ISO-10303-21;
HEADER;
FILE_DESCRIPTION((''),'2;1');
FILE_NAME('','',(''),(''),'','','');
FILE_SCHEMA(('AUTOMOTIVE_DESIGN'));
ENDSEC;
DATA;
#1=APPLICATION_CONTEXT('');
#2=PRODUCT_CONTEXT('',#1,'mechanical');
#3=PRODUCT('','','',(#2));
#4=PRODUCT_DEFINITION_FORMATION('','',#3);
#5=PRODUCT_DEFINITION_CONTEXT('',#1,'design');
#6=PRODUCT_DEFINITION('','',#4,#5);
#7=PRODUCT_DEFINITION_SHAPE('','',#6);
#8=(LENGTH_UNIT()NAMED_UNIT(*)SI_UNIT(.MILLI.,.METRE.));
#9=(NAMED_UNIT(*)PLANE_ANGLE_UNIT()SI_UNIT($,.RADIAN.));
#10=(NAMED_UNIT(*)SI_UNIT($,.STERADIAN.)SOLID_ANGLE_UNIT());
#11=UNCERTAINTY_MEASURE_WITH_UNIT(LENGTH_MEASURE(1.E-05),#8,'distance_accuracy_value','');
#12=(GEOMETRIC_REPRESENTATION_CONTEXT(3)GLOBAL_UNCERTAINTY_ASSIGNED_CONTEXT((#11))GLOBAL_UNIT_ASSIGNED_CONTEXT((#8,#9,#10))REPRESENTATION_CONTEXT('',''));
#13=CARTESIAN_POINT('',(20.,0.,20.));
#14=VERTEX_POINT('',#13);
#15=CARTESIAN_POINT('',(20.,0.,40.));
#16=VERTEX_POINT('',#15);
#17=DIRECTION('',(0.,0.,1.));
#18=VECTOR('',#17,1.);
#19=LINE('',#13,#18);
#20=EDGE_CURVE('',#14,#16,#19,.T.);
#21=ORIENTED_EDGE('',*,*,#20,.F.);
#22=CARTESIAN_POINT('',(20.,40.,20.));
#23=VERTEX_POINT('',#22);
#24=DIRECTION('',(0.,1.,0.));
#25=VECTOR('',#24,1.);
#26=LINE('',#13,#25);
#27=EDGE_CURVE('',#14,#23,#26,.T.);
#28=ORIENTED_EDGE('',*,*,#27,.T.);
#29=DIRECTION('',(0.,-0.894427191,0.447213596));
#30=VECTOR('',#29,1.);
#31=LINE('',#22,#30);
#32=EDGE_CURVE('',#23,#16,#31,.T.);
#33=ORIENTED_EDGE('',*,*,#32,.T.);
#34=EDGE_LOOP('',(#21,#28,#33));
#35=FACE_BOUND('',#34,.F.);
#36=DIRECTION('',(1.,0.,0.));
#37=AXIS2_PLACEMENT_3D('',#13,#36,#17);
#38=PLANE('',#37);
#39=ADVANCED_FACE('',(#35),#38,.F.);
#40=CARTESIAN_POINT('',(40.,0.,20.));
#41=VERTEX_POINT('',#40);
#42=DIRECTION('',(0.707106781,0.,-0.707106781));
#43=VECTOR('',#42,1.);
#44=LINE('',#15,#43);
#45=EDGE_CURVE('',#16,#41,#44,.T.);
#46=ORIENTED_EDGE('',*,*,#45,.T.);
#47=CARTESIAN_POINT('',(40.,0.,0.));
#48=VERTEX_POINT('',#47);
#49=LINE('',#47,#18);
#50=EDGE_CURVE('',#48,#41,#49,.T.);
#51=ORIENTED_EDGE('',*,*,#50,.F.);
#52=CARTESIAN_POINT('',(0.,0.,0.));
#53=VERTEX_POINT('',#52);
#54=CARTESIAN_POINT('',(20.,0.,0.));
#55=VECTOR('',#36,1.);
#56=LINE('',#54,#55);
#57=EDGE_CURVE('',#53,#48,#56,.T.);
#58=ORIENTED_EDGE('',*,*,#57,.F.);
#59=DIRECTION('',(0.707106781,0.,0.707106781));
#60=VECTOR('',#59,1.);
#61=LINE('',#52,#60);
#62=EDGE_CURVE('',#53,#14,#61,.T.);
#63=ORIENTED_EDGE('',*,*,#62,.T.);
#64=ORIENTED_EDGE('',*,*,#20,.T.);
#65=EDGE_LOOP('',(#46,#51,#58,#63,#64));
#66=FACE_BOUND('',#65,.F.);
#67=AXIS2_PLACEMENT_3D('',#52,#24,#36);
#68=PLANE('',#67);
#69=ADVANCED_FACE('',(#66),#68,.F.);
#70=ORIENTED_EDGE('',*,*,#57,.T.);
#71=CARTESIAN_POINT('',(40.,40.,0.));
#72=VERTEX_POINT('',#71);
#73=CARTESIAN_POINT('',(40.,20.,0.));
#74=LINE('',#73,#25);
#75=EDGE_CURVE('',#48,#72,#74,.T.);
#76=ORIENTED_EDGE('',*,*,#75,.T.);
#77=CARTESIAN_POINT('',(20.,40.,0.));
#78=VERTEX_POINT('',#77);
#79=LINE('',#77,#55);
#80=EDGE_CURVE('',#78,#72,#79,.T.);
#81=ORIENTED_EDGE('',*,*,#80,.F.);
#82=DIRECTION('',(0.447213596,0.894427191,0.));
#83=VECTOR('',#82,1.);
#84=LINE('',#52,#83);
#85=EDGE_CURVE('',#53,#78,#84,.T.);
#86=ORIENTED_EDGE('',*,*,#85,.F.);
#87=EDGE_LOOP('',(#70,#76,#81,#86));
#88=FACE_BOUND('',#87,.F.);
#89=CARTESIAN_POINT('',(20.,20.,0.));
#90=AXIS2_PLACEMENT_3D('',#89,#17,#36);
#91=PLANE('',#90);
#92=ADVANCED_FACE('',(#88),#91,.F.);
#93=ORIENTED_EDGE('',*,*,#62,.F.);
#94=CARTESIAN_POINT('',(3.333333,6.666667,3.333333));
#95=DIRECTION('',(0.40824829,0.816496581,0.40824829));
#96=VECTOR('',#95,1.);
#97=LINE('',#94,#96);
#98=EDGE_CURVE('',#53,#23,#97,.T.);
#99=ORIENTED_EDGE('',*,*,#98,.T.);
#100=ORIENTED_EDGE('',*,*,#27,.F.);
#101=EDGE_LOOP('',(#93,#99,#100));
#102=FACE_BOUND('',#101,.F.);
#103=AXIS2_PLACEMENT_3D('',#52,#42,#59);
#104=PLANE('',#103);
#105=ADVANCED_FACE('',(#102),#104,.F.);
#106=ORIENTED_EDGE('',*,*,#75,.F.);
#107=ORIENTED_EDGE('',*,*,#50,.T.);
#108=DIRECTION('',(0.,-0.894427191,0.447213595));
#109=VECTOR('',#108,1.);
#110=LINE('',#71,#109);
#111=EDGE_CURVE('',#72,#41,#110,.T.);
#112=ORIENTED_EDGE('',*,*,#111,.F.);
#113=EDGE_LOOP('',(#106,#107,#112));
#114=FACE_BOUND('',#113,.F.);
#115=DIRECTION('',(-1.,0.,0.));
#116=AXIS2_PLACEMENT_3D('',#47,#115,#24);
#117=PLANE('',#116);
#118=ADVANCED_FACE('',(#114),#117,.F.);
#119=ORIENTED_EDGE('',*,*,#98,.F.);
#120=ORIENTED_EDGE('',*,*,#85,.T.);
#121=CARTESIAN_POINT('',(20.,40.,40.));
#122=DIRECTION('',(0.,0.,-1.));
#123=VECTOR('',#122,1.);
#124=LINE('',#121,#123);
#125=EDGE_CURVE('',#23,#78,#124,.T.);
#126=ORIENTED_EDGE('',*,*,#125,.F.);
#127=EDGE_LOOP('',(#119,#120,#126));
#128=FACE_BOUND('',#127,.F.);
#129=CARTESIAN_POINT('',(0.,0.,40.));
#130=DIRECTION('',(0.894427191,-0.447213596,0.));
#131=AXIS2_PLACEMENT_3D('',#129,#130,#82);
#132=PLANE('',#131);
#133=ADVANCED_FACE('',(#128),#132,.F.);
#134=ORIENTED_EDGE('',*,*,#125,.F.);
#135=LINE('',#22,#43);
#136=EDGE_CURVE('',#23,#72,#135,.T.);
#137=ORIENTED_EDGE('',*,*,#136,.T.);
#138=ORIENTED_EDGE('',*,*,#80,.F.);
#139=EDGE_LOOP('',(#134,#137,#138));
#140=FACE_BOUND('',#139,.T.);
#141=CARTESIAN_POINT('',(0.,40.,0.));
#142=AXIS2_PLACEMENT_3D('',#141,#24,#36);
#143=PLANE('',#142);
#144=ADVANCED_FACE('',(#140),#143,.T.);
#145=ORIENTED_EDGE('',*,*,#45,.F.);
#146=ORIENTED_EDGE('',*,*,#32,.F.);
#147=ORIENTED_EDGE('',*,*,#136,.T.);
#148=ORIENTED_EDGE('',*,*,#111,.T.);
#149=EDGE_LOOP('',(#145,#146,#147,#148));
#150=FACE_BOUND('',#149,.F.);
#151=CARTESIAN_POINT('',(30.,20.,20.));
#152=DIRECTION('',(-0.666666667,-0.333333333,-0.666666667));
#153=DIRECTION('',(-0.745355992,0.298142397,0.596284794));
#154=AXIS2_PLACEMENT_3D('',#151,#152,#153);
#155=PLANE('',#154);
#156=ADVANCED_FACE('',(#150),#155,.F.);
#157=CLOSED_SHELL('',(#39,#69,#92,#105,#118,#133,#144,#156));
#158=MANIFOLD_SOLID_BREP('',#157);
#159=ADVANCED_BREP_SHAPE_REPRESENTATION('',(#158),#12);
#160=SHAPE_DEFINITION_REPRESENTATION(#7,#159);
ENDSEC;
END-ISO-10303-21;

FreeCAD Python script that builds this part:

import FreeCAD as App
import Part
import Sketcher

V = App.Vector
Q = App.Units.Quantity

doc = App.newDocument("Part")
body = doc.addObject("PartDesign::Body", "Body")

# Sketch on XY plane
sketch1 = body.newObject("Sketcher::SketchObject", "Sketch")
sketch1.AttachmentSupport = (doc.getObject("XY_Plane"), [""])
sketch1.MapMode = "FlatFace"
sketch1.addGeometry(Part.LineSegment(V(0, 40, 0), V(0, 0, 0)), False)
sketch1.addGeometry(Part.LineSegment(V(0, 0, 0), V(40, 0, 0)), False)
sketch1.addGeometry(Part.LineSegment(V(40, 0, 0), V(40, 40, 0)), False)
sketch1.addGeometry(Part.LineSegment(V(40, 40, 0), V(0, 40, 0)), False)
sketch1.addConstraint(Sketcher.Constraint("Coincident", 0, 2, 1, 1))
sketch1.addConstraint(Sketcher.Constraint("Coincident", 1, 2, 2, 1))
sketch1.addConstraint(Sketcher.Constraint("Coincident", 2, 2, 3, 1))
sketch1.addConstraint(Sketcher.Constraint("Coincident", 3, 2, 0, 1))
sketch1.addConstraint(Sketcher.Constraint("Vertical", 0))
sketch1.addConstraint(Sketcher.Constraint("Horizontal", 1))
sketch1.addConstraint(Sketcher.Constraint("Vertical", 2))
sketch1.addConstraint(Sketcher.Constraint("Horizontal", 3))
sketch1.addConstraint(Sketcher.Constraint("Coincident", 0, 2, -1, 1))
sketch1.addConstraint(Sketcher.Constraint("Equal", 3, 0))
sketch1.addConstraint(Sketcher.Constraint("DistanceX", 1, 1, 1, 2, Q("40 mm")))
pad1 = body.newObject("PartDesign::Pad", "Pad")
pad1.Profile = sketch1
pad1.Length = 40

# Sketch on XY plane
sketch2 = body.newObject("Sketcher::SketchObject", "Sketch001")
sketch2.AttachmentSupport = (doc.getObject("XY_Plane"), [""])
sketch2.MapMode = "FlatFace"
sketch2.AttachmentOffset = App.Placement(V(0, 0, 40), App.Rotation())
sketch2.addGeometry(Part.LineSegment(V(0, 0, 0), V(20, 40, 0)), False)
sketch2.addGeometry(Part.LineSegment(V(20, 40, 0), V(0, 40, 0)), False)
sketch2.addGeometry(Part.LineSegment(V(0, 40, 0), V(0, 0, 0)), False)
sketch2.addConstraint(Sketcher.Constraint("Coincident", 0, 2, 1, 1))
sketch2.addConstraint(Sketcher.Constraint("Coincident", 1, 2, 2, 1))
sketch2.addConstraint(Sketcher.Constraint("Coincident", 2, 2, 0, 1))
sketch2.addConstraint(Sketcher.Constraint("Horizontal", 1))
sketch2.addConstraint(Sketcher.Constraint("Vertical", 2))
sketch2.addConstraint(Sketcher.Constraint("Coincident", 2, 2, -1, 1))
sketch2.addConstraint(Sketcher.Constraint("DistanceX", 1, 2, 1, 1, Q("20 mm")))
sketch2.addConstraint(Sketcher.Constraint("DistanceY", 2, 2, 2, 1, Q("40 mm")))
pocket1 = body.newObject("PartDesign::Pocket", "Pocket")
pocket1.Profile = sketch2
pocket1.Length = 40

# Sketch on XZ plane
sketch3 = body.newObject("Sketcher::SketchObject", "Sketch002")
sketch3.AttachmentSupport = (doc.getObject("XZ_Plane"), [""])
sketch3.MapMode = "FlatFace"
sketch3.addGeometry(Part.LineSegment(V(0, 0, 0), V(20, 20, 0)), False)
sketch3.addGeometry(Part.LineSegment(V(20, 20, 0), V(20, 40, 0)), False)
sketch3.addGeometry(Part.LineSegment(V(20, 40, 0), V(0, 40, 0)), False)
sketch3.addGeometry(Part.LineSegment(V(0, 40, 0), V(0, 0, 0)), False)
sketch3.addConstraint(Sketcher.Constraint("Coincident", 0, 2, 1, 1))
sketch3.addConstraint(Sketcher.Constraint("Coincident", 1, 2, 2, 1))
sketch3.addConstraint(Sketcher.Constraint("Coincident", 2, 2, 3, 1))
sketch3.addConstraint(Sketcher.Constraint("Coincident", 3, 2, 0, 1))
sketch3.addConstraint(Sketcher.Constraint("Vertical", 1))
sketch3.addConstraint(Sketcher.Constraint("Horizontal", 2))
sketch3.addConstraint(Sketcher.Constraint("Vertical", 3))
sketch3.addConstraint(Sketcher.Constraint("Coincident", 3, 2, -1, 1))
sketch3.addConstraint(Sketcher.Constraint("Equal", 2, 1))
sketch3.addConstraint(Sketcher.Constraint("DistanceX", 2, 2, 2, 1, Q("20 mm")))
sketch3.addConstraint(Sketcher.Constraint("DistanceY", 3, 2, 3, 1, Q("40 mm")))
pocket2 = body.newObject("PartDesign::Pocket", "Pocket001")
pocket2.Profile = sketch3
pocket2.Length = 40

# Sketch on YZ plane
sketch4 = body.newObject("Sketcher::SketchObject", "Sketch003")
sketch4.AttachmentSupport = (doc.getObject("YZ_Plane"), [""])
sketch4.MapMode = "FlatFace"
sketch4.AttachmentOffset = App.Placement(V(0, 0, 20), App.Rotation())
sketch4.addGeometry(Part.LineSegment(V(40, 20, 0), V(0, 40, 0)), False)
sketch4.addGeometry(Part.LineSegment(V(0, 40, 0), V(40, 40, 0)), False)
sketch4.addGeometry(Part.LineSegment(V(40, 40, 0), V(40, 20, 0)), False)
sketch4.addConstraint(Sketcher.Constraint("Coincident", 0, 2, 1, 1))
sketch4.addConstraint(Sketcher.Constraint("Coincident", 1, 2, 2, 1))
sketch4.addConstraint(Sketcher.Constraint("Coincident", 2, 2, 0, 1))
sketch4.addConstraint(Sketcher.Constraint("Horizontal", 1))
sketch4.addConstraint(Sketcher.Constraint("Vertical", 2))
sketch4.addConstraint(Sketcher.Constraint("PointOnObject", 0, 2, -2))
sketch4.addConstraint(Sketcher.Constraint("DistanceX", 1, 1, 1, 2, Q("40 mm")))
sketch4.addConstraint(Sketcher.Constraint("DistanceY", 2, 2, 2, 1, Q("20 mm")))
sketch4.addConstraint(Sketcher.Constraint("DistanceY", -1, 1, 0, 2, Q("40 mm")))
pocket3 = body.newObject("PartDesign::Pocket", "Pocket002")
pocket3.Profile = sketch4
pocket3.Length = 40
pocket3.Reversed = True

# Sketch on XZ plane
sketch5 = body.newObject("Sketcher::SketchObject", "Sketch004")
sketch5.AttachmentSupport = (doc.getObject("XZ_Plane"), [""])
sketch5.MapMode = "FlatFace"
sketch5.addGeometry(Part.LineSegment(V(20, 40, 0), V(40, 20, 0)), False)
sketch5.addGeometry(Part.LineSegment(V(40, 20, 0), V(40, 40, 0)), False)
sketch5.addGeometry(Part.LineSegment(V(40, 40, 0), V(20, 40, 0)), False)
sketch5.addConstraint(Sketcher.Constraint("Coincident", 0, 2, 1, 1))
sketch5.addConstraint(Sketcher.Constraint("Coincident", 1, 2, 2, 1))
sketch5.addConstraint(Sketcher.Constraint("Coincident", 2, 2, 0, 1))
sketch5.addConstraint(Sketcher.Constraint("Vertical", 1))
sketch5.addConstraint(Sketcher.Constraint("Horizontal", 2))
sketch5.addConstraint(Sketcher.Constraint("Equal", 2, 1))
sketch5.addConstraint(Sketcher.Constraint("DistanceX", 2, 2, 2, 1, Q("20 mm")))
sketch5.addConstraint(Sketcher.Constraint("DistanceX", -1, 1, 0, 2, Q("40 mm")))
sketch5.addConstraint(Sketcher.Constraint("DistanceY", -1, 1, 0, 2, Q("20 mm")))
pocket4 = body.newObject("PartDesign::Pocket", "Pocket003")
pocket4.Profile = sketch5
pocket4.Length = 40

# Sketch on an angled plane
sketch6 = body.newObject("Sketcher::SketchObject", "Sketch005")
sketch6.Placement = App.Placement(V(26.666667, 13.333333, 26.666667), App.Rotation(V(-0.745355992, 0.298142397, 0.596284794), V(0, 0.894427191, -0.447213595), V(-0.666666667, -0.333333333, -0.666666667), "ZXY"))
sketch6.addGeometry(Part.LineSegment(V(-18, 36, 0), V(-18, -9, 0)), False)
sketch6.addGeometry(Part.LineSegment(V(-18, -9, 0), V(9, -18, 0)), False)
sketch6.addGeometry(Part.LineSegment(V(9, -18, 0), V(9, 27, 0)), False)
sketch6.addGeometry(Part.LineSegment(V(9, 27, 0), V(-18, 36, 0)), False)
sketch6.addConstraint(Sketcher.Constraint("Coincident", 0, 2, 1, 1))
sketch6.addConstraint(Sketcher.Constraint("Coincident", 1, 2, 2, 1))
sketch6.addConstraint(Sketcher.Constraint("Coincident", 2, 2, 3, 1))
sketch6.addConstraint(Sketcher.Constraint("Coincident", 3, 2, 0, 1))
sketch6.addConstraint(Sketcher.Constraint("Vertical", 0))
sketch6.addConstraint(Sketcher.Constraint("Vertical", 2))
sketch6.addConstraint(Sketcher.Constraint("Parallel", 1, 3))
sketch6.addConstraint(Sketcher.Constraint("DistanceY", 0, 2, 0, 1, Q("44.72136 mm")))
sketch6.addConstraint(Sketcher.Constraint("Distance", 1, Q("28.284271 mm")))
sketch6.addConstraint(Sketcher.Constraint("DistanceY", 0, 2, -1, 1, Q("8.944272 mm")))
sketch6.addConstraint(Sketcher.Constraint("DistanceX", -1, 1, 1, 2, Q("8.944272 mm")))
sketch6.addConstraint(Sketcher.Constraint("DistanceY", 1, 2, 0, 2, Q("8.944272 mm")))
pocket5 = body.newObject("PartDesign::Pocket", "Pocket004")
pocket5.Profile = sketch6
pocket5.Length = 40

doc.recompute()
